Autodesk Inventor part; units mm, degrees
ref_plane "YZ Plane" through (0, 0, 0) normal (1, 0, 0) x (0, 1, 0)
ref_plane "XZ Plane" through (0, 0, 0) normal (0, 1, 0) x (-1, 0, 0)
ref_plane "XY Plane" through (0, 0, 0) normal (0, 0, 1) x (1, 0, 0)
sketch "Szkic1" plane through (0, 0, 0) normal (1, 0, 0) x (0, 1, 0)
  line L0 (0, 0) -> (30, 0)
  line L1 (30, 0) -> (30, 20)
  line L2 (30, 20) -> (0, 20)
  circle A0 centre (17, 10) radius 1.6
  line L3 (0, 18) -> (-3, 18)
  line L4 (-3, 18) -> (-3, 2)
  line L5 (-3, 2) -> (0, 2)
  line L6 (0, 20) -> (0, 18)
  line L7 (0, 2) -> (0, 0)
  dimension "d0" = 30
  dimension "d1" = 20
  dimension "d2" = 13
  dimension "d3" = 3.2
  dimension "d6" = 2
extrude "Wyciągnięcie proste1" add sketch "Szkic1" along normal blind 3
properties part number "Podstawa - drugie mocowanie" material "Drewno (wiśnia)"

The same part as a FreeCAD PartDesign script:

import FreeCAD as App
import Part
import Sketcher

V = App.Vector
Q = App.Units.Quantity


def add_polygon(sketch, points):
    """Adds a closed chain of lines whose ends are joined by coincident constraints."""
    first, n = sketch.GeometryCount, len(points)
    for a, b in zip(points, points[1:] + points[:1]):
        sketch.addGeometry(Part.LineSegment(App.Vector(*a, 0), App.Vector(*b, 0)), False)
    for i in range(n):
        sketch.addConstraint(Sketcher.Constraint("Coincident", first + i, 2, first + (i + 1) % n, 1))

doc = App.newDocument("Part")
body = doc.addObject("PartDesign::Body", "Body")

sketch1 = doc.addObject("Sketcher::SketchObject", "Sketch")
body.addObject(sketch1)
sketch1.AttachmentSupport = (doc.YZ_Plane, [""])
sketch1.MapMode = "FlatFace"
add_polygon(sketch1, [(0, 2), (0, 0), (30, 0), (30, 20), (0, 20), (0, 18), (-3, 18), (-3, 2)])
sketch1.addGeometry(Part.Circle(V(17, 10, 0), V(0, 0, 1), 1.6), False)
sketch1.addConstraint([
    Sketcher.Constraint("Vertical", 0),
    Sketcher.Constraint("Horizontal", 1),
    Sketcher.Constraint("Vertical", 2),
    Sketcher.Constraint("Horizontal", 3),
    Sketcher.Constraint("Vertical", 4),
    Sketcher.Constraint("Horizontal", 5),
    Sketcher.Constraint("Vertical", 6),
    Sketcher.Constraint("Horizontal", 7),
    Sketcher.Constraint("Coincident", 0, 2, -1, 1),
    Sketcher.Constraint("PointOnObject", 3, 2, -2),
    Sketcher.Constraint("Equal", 0, 4),
    Sketcher.Constraint("Diameter", 8, Q("3.2 mm")),
    Sketcher.Constraint("DistanceX", 1, 1, 1, 2, Q("30 mm")),
    Sketcher.Constraint("DistanceY", 0, 2, 0, 1, Q("2 mm")),
    Sketcher.Constraint("DistanceY", 2, 1, 2, 2, Q("20 mm")),
    Sketcher.Constraint("DistanceX", 8, 3, 1, 2, Q("13 mm")),
    Sketcher.Constraint("DistanceX", 5, 2, 8, 3, Q("20 mm")),
    Sketcher.Constraint("DistanceY", -1, 1, 8, 3, Q("10 mm")),
])
pad1 = doc.addObject("PartDesign::Pad", "Pad")
body.addObject(pad1)
pad1.Profile = sketch1
pad1.Length = 3

doc.recompute()
